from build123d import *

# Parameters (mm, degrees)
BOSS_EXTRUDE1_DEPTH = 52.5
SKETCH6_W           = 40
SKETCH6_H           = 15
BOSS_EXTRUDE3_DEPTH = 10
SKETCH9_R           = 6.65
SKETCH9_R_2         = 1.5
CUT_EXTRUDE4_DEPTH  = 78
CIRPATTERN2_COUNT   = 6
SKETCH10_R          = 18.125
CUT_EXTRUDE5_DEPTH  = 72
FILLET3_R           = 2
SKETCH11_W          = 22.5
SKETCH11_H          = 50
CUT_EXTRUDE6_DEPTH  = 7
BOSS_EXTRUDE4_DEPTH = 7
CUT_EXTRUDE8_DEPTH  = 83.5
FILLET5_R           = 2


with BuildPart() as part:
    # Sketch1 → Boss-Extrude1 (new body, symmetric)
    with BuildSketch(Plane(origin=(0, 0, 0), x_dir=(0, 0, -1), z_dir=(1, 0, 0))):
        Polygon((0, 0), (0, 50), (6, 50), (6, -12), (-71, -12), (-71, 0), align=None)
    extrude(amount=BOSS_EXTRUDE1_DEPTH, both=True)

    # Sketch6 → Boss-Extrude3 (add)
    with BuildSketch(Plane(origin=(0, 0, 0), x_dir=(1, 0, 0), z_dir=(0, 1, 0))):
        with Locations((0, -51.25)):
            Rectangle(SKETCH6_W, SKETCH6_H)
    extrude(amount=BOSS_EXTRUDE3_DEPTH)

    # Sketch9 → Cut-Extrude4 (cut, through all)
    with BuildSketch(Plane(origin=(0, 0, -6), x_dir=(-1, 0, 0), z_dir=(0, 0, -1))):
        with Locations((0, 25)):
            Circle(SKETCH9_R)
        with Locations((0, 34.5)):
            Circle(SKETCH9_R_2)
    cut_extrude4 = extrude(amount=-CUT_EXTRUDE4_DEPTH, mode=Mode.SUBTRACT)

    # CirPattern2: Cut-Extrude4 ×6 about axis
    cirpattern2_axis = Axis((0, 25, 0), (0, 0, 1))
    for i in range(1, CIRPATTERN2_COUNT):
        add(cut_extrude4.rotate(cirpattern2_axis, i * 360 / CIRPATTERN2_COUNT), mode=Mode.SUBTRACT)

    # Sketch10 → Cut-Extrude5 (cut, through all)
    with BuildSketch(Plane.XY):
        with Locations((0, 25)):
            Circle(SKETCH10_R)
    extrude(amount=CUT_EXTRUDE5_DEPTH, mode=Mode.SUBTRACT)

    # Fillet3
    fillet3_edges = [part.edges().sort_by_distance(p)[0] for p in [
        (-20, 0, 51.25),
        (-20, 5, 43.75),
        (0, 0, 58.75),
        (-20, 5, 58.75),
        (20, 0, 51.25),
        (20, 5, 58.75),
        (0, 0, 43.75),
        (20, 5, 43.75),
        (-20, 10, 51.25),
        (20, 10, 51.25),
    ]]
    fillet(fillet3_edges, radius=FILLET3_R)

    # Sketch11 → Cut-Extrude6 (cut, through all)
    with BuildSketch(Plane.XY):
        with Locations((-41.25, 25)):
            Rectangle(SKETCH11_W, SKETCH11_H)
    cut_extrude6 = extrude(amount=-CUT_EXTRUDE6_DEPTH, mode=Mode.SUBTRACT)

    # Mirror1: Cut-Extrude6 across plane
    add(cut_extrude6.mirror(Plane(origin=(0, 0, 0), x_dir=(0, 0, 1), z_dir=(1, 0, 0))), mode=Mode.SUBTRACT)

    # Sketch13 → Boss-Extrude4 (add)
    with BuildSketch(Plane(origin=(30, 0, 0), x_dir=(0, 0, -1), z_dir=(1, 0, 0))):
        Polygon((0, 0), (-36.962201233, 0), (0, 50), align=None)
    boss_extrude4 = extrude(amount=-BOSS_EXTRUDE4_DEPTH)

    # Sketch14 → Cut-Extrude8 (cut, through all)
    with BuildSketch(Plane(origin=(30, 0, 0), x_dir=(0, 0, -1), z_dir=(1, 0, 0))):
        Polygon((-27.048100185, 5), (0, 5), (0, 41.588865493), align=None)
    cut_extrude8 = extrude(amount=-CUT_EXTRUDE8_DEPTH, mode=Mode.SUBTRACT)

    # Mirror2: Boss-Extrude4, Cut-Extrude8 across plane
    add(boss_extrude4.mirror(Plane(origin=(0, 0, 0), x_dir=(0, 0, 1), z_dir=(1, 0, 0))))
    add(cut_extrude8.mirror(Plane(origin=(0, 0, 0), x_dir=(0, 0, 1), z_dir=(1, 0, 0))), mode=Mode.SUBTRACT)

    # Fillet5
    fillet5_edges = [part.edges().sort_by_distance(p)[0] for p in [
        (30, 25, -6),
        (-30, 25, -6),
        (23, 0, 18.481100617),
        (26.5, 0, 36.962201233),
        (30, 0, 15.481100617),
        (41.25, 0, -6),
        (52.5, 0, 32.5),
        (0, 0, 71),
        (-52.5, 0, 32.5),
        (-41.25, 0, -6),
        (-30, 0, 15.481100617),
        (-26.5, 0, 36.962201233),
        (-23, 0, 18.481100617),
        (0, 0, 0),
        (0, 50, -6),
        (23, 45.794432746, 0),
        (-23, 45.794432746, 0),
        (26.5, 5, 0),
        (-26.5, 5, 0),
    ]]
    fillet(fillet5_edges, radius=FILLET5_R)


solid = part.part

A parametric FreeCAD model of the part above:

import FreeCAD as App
import Part
import Sketcher
Q = App.Units.Quantity


def edges_at(feature, points):
    """Names of the edges that pass closest to the given points."""
    edges = feature.Shape.Edges
    near = lambda p: min(range(len(edges)), key=lambda i: edges[i].distToShape(Part.Vertex(*p))[0])
    return sorted({f"Edge{near(p) + 1}" for p in points})

doc = App.newDocument("Part")
body = doc.addObject("PartDesign::Body", "Body")

# Sketch on YZ plane
sketch1 = body.newObject("Sketcher::SketchObject", "Sketch")
sketch1.AttachmentSupport = (doc.getObject("YZ_Plane"), [""])
sketch1.MapMode = "FlatFace"
sketch1.addGeometry([
    Part.LineSegment(App.Vector(50, 0, 0), App.Vector(0, 0, 0)),  # 0
    Part.LineSegment(App.Vector(0, 0, 0), App.Vector(0, 71, 0)),  # 1
    Part.LineSegment(App.Vector(0, 71, 0), App.Vector(-12, 71, 0)),  # 2
    Part.LineSegment(App.Vector(-12, 71, 0), App.Vector(-12, -6, 0)),  # 3
    Part.LineSegment(App.Vector(-12, -6, 0), App.Vector(50, -6, 0)),  # 4
    Part.LineSegment(App.Vector(50, -6, 0), App.Vector(50, 0, 0)),  # 5
], False)
sketch1.addConstraint([
    Sketcher.Constraint("Coincident", 0, 2, 1, 1),
    Sketcher.Constraint("Coincident", 1, 2, 2, 1),
    Sketcher.Constraint("Coincident", 2, 2, 3, 1),
    Sketcher.Constraint("Coincident", 3, 2, 4, 1),
    Sketcher.Constraint("Coincident", 4, 2, 5, 1),
    Sketcher.Constraint("Coincident", 5, 2, 0, 1),
    Sketcher.Constraint("Horizontal", 0),
    Sketcher.Constraint("Vertical", 1),
    Sketcher.Constraint("Horizontal", 2),
    Sketcher.Constraint("Vertical", 3),
    Sketcher.Constraint("Horizontal", 4),
    Sketcher.Constraint("Vertical", 5),
    Sketcher.Constraint("Coincident", 0, 2, -1, 1),
    Sketcher.Constraint("DistanceX", 0, 2, 0, 1, Q("50 mm")),
    Sketcher.Constraint("DistanceX", 2, 2, 2, 1, Q("12 mm")),
    Sketcher.Constraint("DistanceY", 1, 1, 1, 2, Q("71 mm")),
    Sketcher.Constraint("DistanceY", 3, 2, 3, 1, Q("77 mm")),
])
pad1 = body.newObject("PartDesign::Pad", "Pad")
pad1.Profile = sketch1
pad1.Length = 105
pad1.Midplane = True

# Sketch on XZ plane
sketch2 = body.newObject("Sketcher::SketchObject", "Sketch001")
sketch2.AttachmentSupport = (doc.getObject("XZ_Plane"), [""])
sketch2.MapMode = "FlatFace"
sketch2.addGeometry([
    Part.LineSegment(App.Vector(-20, 44, 0), App.Vector(-20, 59, 0)),
    Part.LineSegment(App.Vector(-20, 59, 0), App.Vector(20, 59, 0)),
    Part.LineSegment(App.Vector(20, 59, 0), App.Vector(20, 44, 0)),
    Part.LineSegment(App.Vector(20, 44, 0), App.Vector(-20, 44, 0)),
], False)
sketch2.addConstraint([
    Sketcher.Constraint("Coincident", 0, 2, 1, 1),
    Sketcher.Constraint("Coincident", 1, 2, 2, 1),
    Sketcher.Constraint("Coincident", 2, 2, 3, 1),
    Sketcher.Constraint("Coincident", 3, 2, 0, 1),
    Sketcher.Constraint("Vertical", 0),
    Sketcher.Constraint("Horizontal", 1),
    Sketcher.Constraint("Vertical", 2),
    Sketcher.Constraint("Horizontal", 3),
    Sketcher.Constraint("DistanceX", 1, 1, 1, 2, Q("40 mm")),
    Sketcher.Constraint("DistanceY", 0, 1, 0, 2, Q("15 mm")),
    Sketcher.Constraint("DistanceX", 0, 2, -1, 1, Q("20 mm")),
    Sketcher.Constraint("DistanceY", -1, 1, 0, 2, Q("58.75 mm")),
])
pad2 = body.newObject("PartDesign::Pad", "Pad001")
pad2.Profile = sketch2
pad2.Length = 10
pad2.Reversed = True

# Sketch on XY plane
sketch3 = body.newObject("Sketcher::SketchObject", "Sketch002")
sketch3.AttachmentSupport = (doc.getObject("XY_Plane"), [""])
sketch3.MapMode = "FlatFace"
sketch3.AttachmentOffset = App.Placement(App.Vector(0, 0, -6), App.Rotation())
sketch3.addGeometry([
    Part.Circle(App.Vector(0, 25, 0), App.Vector(0, 0, 1), 6.7),
    Part.Circle(App.Vector(0, 34.5, 0), App.Vector(0, 0, 1), 1.5),
], False)
sketch3.addConstraint([
    Sketcher.Constraint("PointOnObject", 0, 3, -2),
    Sketcher.Constraint("PointOnObject", 1, 3, -2),
    Sketcher.Constraint("Diameter", 1, Q("3 mm")),
    Sketcher.Constraint("Diameter", 0, Q("13.3 mm")),
    Sketcher.Constraint("DistanceY", -1, 1, 0, 3, Q("25 mm")),
    Sketcher.Constraint("DistanceY", -1, 1, 1, 3, Q("34.5 mm")),
])
pocket1 = body.newObject("PartDesign::Pocket", "Pocket")
pocket1.Profile = sketch3
pocket1.Type = "ThroughAll"
pocket1.Reversed = True
doc.recompute()

datumline = body.newObject("PartDesign::Line", "DatumLine")
datumline.Placement = App.Placement(App.Vector(0, 25, 0), App.Rotation(App.Vector(0, 0, 1), App.Vector(0, 0, 1)))
polarpattern = body.newObject("PartDesign::PolarPattern", "PolarPattern")
polarpattern.Originals = [pocket1]
polarpattern.Axis = (datumline, [""])
polarpattern.Angle = 360
polarpattern.Occurrences = 6
body.Tip = polarpattern

# Sketch on XY plane
sketch4 = body.newObject("Sketcher::SketchObject", "Sketch003")
sketch4.AttachmentSupport = (doc.getObject("XY_Plane"), [""])
sketch4.MapMode = "FlatFace"
sketch4.addGeometry(Part.Circle(App.Vector(0, 25, 0), App.Vector(0, 0, 1), 18), False)
sketch4.addConstraint([
    Sketcher.Constraint("PointOnObject", 0, 3, -2),
    Sketcher.Constraint("Diameter", 0, Q("36.25 mm")),
    Sketcher.Constraint("DistanceY", -1, 1, 0, 3, Q("25 mm")),
])
pocket2 = body.newObject("PartDesign::Pocket", "Pocket001")
pocket2.Profile = sketch4
pocket2.Type = "ThroughAll"
pocket2.Reversed = True
doc.recompute()

fillet = body.newObject("PartDesign::Fillet", "Fillet")
fillet.Base = (pocket2, edges_at(pocket2, [
    (-20, 0, 51.25),
    (-20, 5, 43.75),
    (0, 0, 58.75),
    (-20, 5, 58.75),
    (20, 0, 51.25),
    (20, 5, 58.75),
    (0, 0, 43.75),
    (20, 5, 43.75),
    (-20, 10, 51.25),
    (20, 10, 51.25),
]))
fillet.Radius = 2

# Sketch on XY plane
sketch5 = body.newObject("Sketcher::SketchObject", "Sketch004")
sketch5.AttachmentSupport = (doc.getObject("XY_Plane"), [""])
sketch5.MapMode = "FlatFace"
sketch5.addGeometry([
    Part.LineSegment(App.Vector(-52, 50, 0), App.Vector(-52, 0, 0)),
    Part.LineSegment(App.Vector(-52, 0, 0), App.Vector(-30, 0, 0)),
    Part.LineSegment(App.Vector(-30, 0, 0), App.Vector(-30, 50, 0)),
    Part.LineSegment(App.Vector(-30, 50, 0), App.Vector(-52, 50, 0)),
], False)
sketch5.addConstraint([
    Sketcher.Constraint("Coincident", 0, 2, 1, 1),
    Sketcher.Constraint("Coincident", 1, 2, 2, 1),
    Sketcher.Constraint("Coincident", 2, 2, 3, 1),
    Sketcher.Constraint("Coincident", 3, 2, 0, 1),
    Sketcher.Constraint("Vertical", 0),
    Sketcher.Constraint("Horizontal", 1),
    Sketcher.Constraint("Vertical", 2),
    Sketcher.Constraint("Horizontal", 3),
    Sketcher.Constraint("PointOnObject", 0, 2, -1),
    Sketcher.Constraint("DistanceY", 0, 2, 0, 1, Q("50 mm")),
    Sketcher.Constraint("DistanceX", 1, 1, 1, 2, Q("22.5 mm")),
    Sketcher.Constraint("DistanceX", 1, 2, -1, 1, Q("30 mm")),
])
pocket3 = body.newObject("PartDesign::Pocket", "Pocket002")
pocket3.Profile = sketch5
pocket3.Type = "ThroughAll"
doc.recompute()

mirrored = body.newObject("PartDesign::Mirrored", "Mirrored")
mirrored.Originals = [pocket3]
mirrored.MirrorPlane = (doc.getObject("YZ_Plane"), [""])
body.Tip = mirrored

# Sketch on YZ plane
sketch6 = body.newObject("Sketcher::SketchObject", "Sketch005")
sketch6.AttachmentSupport = (doc.getObject("YZ_Plane"), [""])
sketch6.MapMode = "FlatFace"
sketch6.AttachmentOffset = App.Placement(App.Vector(0, 0, 30), App.Rotation())
sketch6.addGeometry([
    Part.LineSegment(App.Vector(0, 37, 0), App.Vector(0, 0, 0)),
    Part.LineSegment(App.Vector(0, 0, 0), App.Vector(50, 0, 0)),
    Part.LineSegment(App.Vector(50, 0, 0), App.Vector(0, 37, 0)),
], False)
sketch6.addConstraint([
    Sketcher.Constraint("Coincident", 0, 2, 1, 1),
    Sketcher.Constraint("Coincident", 1, 2, 2, 1),
    Sketcher.Constraint("Coincident", 2, 2, 0, 1),
    Sketcher.Constraint("Vertical", 0),
    Sketcher.Constraint("Horizontal", 1),
    Sketcher.Constraint("Coincident", 0, 2, -1, 1),
    Sketcher.Constraint("DistanceX", 1, 1, 1, 2, Q("50 mm")),
    Sketcher.Constraint("DistanceY", 0, 2, 0, 1, Q("36.962201 mm")),
])
pad3 = body.newObject("PartDesign::Pad", "Pad002")
pad3.Profile = sketch6
pad3.Length = 7
pad3.Reversed = True

# Sketch on YZ plane
sketch7 = body.newObject("Sketcher::SketchObject", "Sketch006")
sketch7.AttachmentSupport = (doc.getObject("YZ_Plane"), [""])
sketch7.MapMode = "FlatFace"
sketch7.AttachmentOffset = App.Placement(App.Vector(0, 0, 30), App.Rotation())
sketch7.addGeometry([
    Part.LineSegment(App.Vector(5, 27, 0), App.Vector(5, 0, 0)),
    Part.LineSegment(App.Vector(5, 0, 0), App.Vector(42, 0, 0)),
    Part.LineSegment(App.Vector(42, 0, 0), App.Vector(5, 27, 0)),
], False)
sketch7.addConstraint([
    Sketcher.Constraint("Coincident", 0, 2, 1, 1),
    Sketcher.Constraint("Coincident", 1, 2, 2, 1),
    Sketcher.Constraint("Coincident", 2, 2, 0, 1),
    Sketcher.Constraint("Vertical", 0),
    Sketcher.Constraint("Horizontal", 1),
    Sketcher.Constraint("PointOnObject", 0, 2, -1),
    Sketcher.Constraint("DistanceX", -1, 1, 0, 2, Q("5 mm")),
    Sketcher.Constraint("DistanceY", 0, 2, 0, 1, Q("27.0481 mm")),
    Sketcher.Constraint("Distance", 2, Q("45.501042 mm")),
])
pocket4 = body.newObject("PartDesign::Pocket", "Pocket003")
pocket4.Profile = sketch7
pocket4.Type = "ThroughAll"
doc.recompute()

mirrored2 = body.newObject("PartDesign::Mirrored", "Mirrored001")
mirrored2.Originals = [pad3, pocket4]
mirrored2.MirrorPlane = (doc.getObject("YZ_Plane"), [""])
body.Tip = mirrored2
doc.recompute()

fillet2 = body.newObject("PartDesign::Fillet", "Fillet001")
fillet2.Base = (mirrored2, edges_at(mirrored2, [
    (30, 25, -6),
    (-30, 25, -6),
    (23, 0, 18.481),
    (26.5, 0, 36.962),
    (30, 0, 15.481),
    (41.25, 0, -6),
    (52.5, 0, 32.5),
    (0, 0, 71),
    (-52.5, 0, 32.5),
    (-41.25, 0, -6),
    (-30, 0, 15.481),
    (-26.5, 0, 36.962),
    (-23, 0, 18.481),
    (0, 0, 0),
    (0, 50, -6),
    (23, 45.794, 0),
    (-23, 45.794, 0),
    (26.5, 5, 0),
    (-26.5, 5, 0),
]))
fillet2.Radius = 2

doc.recompute()
